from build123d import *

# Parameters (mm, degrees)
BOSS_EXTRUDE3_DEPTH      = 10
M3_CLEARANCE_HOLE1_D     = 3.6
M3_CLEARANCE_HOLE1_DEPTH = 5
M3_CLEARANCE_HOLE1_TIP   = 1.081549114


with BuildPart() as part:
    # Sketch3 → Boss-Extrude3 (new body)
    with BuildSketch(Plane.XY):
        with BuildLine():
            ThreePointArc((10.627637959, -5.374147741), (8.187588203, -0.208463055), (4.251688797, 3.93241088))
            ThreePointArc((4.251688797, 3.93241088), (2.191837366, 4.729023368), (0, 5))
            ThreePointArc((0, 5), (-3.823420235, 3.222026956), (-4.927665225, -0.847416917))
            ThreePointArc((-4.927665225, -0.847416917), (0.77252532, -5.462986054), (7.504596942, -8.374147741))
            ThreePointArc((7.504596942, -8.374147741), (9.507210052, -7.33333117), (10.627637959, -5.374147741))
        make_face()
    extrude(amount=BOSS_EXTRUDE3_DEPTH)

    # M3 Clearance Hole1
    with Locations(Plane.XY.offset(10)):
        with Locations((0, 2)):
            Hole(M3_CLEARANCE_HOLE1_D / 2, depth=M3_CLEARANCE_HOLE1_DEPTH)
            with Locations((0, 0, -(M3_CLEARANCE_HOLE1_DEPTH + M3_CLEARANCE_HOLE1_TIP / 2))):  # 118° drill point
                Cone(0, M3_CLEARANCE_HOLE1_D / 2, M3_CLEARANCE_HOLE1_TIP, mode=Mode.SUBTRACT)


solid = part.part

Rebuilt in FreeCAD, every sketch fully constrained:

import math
import FreeCAD as App
import Part
import Sketcher
from FreeCAD import Vector
Q = App.Units.Quantity

doc = App.newDocument("Part")
params = doc.addObject("Spreadsheet::Sheet", "Params")
for row, (alias, value) in enumerate([
    ("sketch1_radius", "18 mm"),
    ("sketch1_radius2", "9 mm"),
    ("sketch1_radius3", "5 mm"),
    ("sketch1_radius4", "27 mm"),
    ("sketch1_radius5", "4 mm"),
    ("pad1_length", "10 mm"),
    ("sketch2_diameter", "3.6 mm"),
    ("hole_diameter", "3.6 mm"),
    ("hole_depth", "5 mm"),
], start=1):
    params.set(f"A{row}", alias)
    params.set(f"B{row}", "=" + value)
    params.setAlias(f"B{row}", alias)

body = doc.addObject("PartDesign::Body", "Body")

# Sketch on XY plane
sketch1 = body.newObject("Sketcher::SketchObject", "Sketch")
sketch1.AttachmentSupport = (doc.getObject("XY_Plane"), [""])
sketch1.MapMode = "FlatFace"
sketch1.addGeometry([
    Part.ArcOfCircle(Part.Circle(Vector(-6.7, -10.4, 0), Vector(0, 0, 1), 18), math.radians(16), math.radians(53)),  # 0
    Part.ArcOfCircle(Part.Circle(Vector(0, -4, 0), Vector(0, 0, 1), 9), math.radians(62), math.radians(90)),  # 1
    Part.ArcOfCircle(Part.Circle(Vector(0, 0, 0), Vector(0, 0, 1), 5), math.radians(90), math.radians(190)),  # 2
    Part.ArcOfCircle(Part.Circle(Vector(14.8, 17.6, 0), Vector(0, 0, 1), 27), math.radians(-137), math.radians(-106)),  # 3
    Part.ArcOfCircle(Part.Circle(Vector(6.7, -4.4, 0), Vector(0, 0, 1), 4), math.radians(-79), math.radians(-13)),  # 4
], False)
sketch1.addConstraint([
    Sketcher.Constraint("Coincident", 0, 2, 1, 1),
    Sketcher.Constraint("Tangent", 1, 2, 2, 1),
    Sketcher.Constraint("Coincident", 2, 2, 3, 1),
    Sketcher.Constraint("Coincident", 3, 2, 4, 1),
    Sketcher.Constraint("Coincident", 4, 2, 0, 1),
    Sketcher.Constraint("Coincident", 2, 3, -1, 1),
    Sketcher.Constraint("PointOnObject", 1, 3, -2),
    Sketcher.Constraint("Radius", 0, Q("18 mm")),
    Sketcher.Constraint("Radius", 1, Q("9 mm")),
    Sketcher.Constraint("Radius", 2, Q("5 mm")),
    Sketcher.Constraint("Radius", 3, Q("27 mm")),
    Sketcher.Constraint("Radius", 4, Q("4 mm")),
    Sketcher.Constraint("DistanceY", 3, 2, 4, 2, Q("3 mm")),
    Sketcher.Constraint("DistanceX", 0, 3, 3, 3, Q("21.417601 mm")),
    Sketcher.Constraint("DistanceX", 0, 3, 2, 2, Q("1.7341 mm")),
    Sketcher.Constraint("DistanceY", -1, 1, 3, 3, Q("17.633919 mm")),
    Sketcher.Constraint("DistanceX", -1, 1, 4, 3, Q("6.736179 mm")),
    Sketcher.Constraint("DistanceY", 4, 3, -1, 1, Q("4.44865 mm")),
])
sketch1.setExpression("Constraints[7]", "Params.sketch1_radius")
sketch1.setExpression("Constraints[8]", "Params.sketch1_radius2")
sketch1.setExpression("Constraints[9]", "Params.sketch1_radius3")
sketch1.setExpression("Constraints[10]", "Params.sketch1_radius4")
sketch1.setExpression("Constraints[11]", "Params.sketch1_radius5")
pad1 = body.newObject("PartDesign::Pad", "Pad")
pad1.Profile = sketch1
pad1.setExpression("Length", "Params.pad1_length")

# Sketch on XY plane
sketch2 = body.newObject("Sketcher::SketchObject", "Sketch001")
sketch2.AttachmentSupport = (doc.getObject("XY_Plane"), [""])
sketch2.MapMode = "FlatFace"
sketch2.AttachmentOffset = App.Placement(Vector(0, 0, 10), App.Rotation())
sketch2.addGeometry(Part.Circle(Vector(0, 2, 0), Vector(0, 0, 1), 1.8), False)
sketch2.addConstraint([
    Sketcher.Constraint("PointOnObject", 0, 3, -2),
    Sketcher.Constraint("Diameter", 0, Q("3.6 mm")),
    Sketcher.Constraint("DistanceY", -1, 1, 0, 3, Q("2 mm")),
])
sketch2.setExpression("Constraints[1]", "Params.sketch2_diameter")
doc.recompute()
hole = body.newObject("PartDesign::Hole", "Hole")
hole.Profile = sketch2
hole.ThreadType = "None"
hole.setExpression("Diameter", "Params.hole_diameter")
hole.DepthType = "Dimension"
hole.setExpression("Depth", "Params.hole_depth")
hole.DrillPoint = "Angled"
hole.DrillPointAngle = 118

doc.recompute()
